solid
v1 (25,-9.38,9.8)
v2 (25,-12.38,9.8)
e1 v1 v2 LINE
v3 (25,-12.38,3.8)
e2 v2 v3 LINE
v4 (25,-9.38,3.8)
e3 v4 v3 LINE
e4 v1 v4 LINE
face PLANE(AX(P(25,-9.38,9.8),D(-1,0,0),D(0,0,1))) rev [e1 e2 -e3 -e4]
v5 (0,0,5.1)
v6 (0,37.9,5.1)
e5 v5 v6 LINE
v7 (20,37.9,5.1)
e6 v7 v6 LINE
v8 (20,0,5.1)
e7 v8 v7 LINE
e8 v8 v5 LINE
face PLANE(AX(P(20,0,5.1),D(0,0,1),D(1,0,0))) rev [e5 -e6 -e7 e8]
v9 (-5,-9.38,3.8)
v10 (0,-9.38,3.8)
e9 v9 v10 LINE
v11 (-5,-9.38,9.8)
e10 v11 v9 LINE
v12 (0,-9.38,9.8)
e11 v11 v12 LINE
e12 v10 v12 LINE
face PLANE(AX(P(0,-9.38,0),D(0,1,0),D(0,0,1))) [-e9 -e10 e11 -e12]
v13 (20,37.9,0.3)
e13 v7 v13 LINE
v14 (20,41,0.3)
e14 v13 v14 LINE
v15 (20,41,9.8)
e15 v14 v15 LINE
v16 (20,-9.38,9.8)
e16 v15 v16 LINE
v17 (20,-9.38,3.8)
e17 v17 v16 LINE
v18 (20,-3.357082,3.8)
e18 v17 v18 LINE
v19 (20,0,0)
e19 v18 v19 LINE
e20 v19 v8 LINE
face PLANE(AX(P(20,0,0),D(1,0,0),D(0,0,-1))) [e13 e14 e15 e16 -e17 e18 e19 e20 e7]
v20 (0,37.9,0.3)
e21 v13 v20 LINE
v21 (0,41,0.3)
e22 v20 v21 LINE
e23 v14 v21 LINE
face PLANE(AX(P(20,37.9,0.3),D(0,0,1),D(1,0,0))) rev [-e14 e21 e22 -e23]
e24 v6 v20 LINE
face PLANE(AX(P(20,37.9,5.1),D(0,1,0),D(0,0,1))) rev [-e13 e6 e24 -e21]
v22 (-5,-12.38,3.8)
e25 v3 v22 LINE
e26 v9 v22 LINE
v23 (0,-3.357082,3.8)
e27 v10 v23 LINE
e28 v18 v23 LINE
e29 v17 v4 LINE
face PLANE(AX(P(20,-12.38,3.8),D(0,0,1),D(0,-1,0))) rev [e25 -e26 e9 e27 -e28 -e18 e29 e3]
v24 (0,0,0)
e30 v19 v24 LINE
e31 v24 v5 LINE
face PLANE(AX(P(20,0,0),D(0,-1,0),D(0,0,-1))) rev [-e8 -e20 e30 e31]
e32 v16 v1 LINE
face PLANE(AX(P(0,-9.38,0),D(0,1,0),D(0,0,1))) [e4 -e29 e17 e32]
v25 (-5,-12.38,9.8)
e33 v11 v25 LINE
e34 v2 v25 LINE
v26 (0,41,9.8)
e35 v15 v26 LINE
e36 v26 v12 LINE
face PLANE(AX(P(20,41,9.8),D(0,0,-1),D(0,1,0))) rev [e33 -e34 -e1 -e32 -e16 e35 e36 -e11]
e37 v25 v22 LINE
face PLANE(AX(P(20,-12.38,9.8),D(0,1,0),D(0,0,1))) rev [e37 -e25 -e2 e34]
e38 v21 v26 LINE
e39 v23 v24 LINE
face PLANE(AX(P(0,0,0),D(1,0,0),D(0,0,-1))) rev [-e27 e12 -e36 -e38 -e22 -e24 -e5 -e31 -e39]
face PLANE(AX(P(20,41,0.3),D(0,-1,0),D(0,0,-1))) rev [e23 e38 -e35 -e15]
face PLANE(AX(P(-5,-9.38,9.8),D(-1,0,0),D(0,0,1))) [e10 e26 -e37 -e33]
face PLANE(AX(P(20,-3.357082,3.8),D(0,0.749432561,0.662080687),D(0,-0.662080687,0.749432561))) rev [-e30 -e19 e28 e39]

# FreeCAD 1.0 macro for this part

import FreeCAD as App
import Part
import Sketcher
Q = App.Units.Quantity

doc = App.newDocument("Part")
body = doc.addObject("PartDesign::Body", "Body")

# Sketch on YZ plane
sketch1 = doc.addObject("Sketcher::SketchObject", "Sketch")
body.addObject(sketch1)
sketch1.AttachmentSupport = (doc.YZ_Plane, [""])
sketch1.MapMode = "FlatFace"
sketch1.addGeometry([
    Part.LineSegment(App.Vector(-12.38, 9.8, 0), App.Vector(-12.38, 3.8, 0)),  # 0
    Part.LineSegment(App.Vector(-12.38, 3.8, 0), App.Vector(-3.357082, 3.8, 0)),  # 1
    Part.LineSegment(App.Vector(-3.357082, 3.8, 0), App.Vector(0, 0, 0)),  # 2
    Part.LineSegment(App.Vector(0, 0, 0), App.Vector(0, 5.1, 0)),  # 3
    Part.LineSegment(App.Vector(0, 5.1, 0), App.Vector(37.9, 5.1, 0)),  # 4
    Part.LineSegment(App.Vector(37.9, 5.1, 0), App.Vector(37.9, 0.3, 0)),  # 5
    Part.LineSegment(App.Vector(37.9, 0.3, 0), App.Vector(41, 0.3, 0)),  # 6
    Part.LineSegment(App.Vector(41, 0.3, 0), App.Vector(41, 9.8, 0)),  # 7
    Part.LineSegment(App.Vector(41, 9.8, 0), App.Vector(-12.38, 9.8, 0)),  # 8
], False)
sketch1.addConstraint([
    Sketcher.Constraint("Coincident", 0, 2, 1, 1),
    Sketcher.Constraint("Coincident", 1, 2, 2, 1),
    Sketcher.Constraint("Coincident", 2, 2, 3, 1),
    Sketcher.Constraint("Coincident", 3, 2, 4, 1),
    Sketcher.Constraint("Coincident", 4, 2, 5, 1),
    Sketcher.Constraint("Coincident", 5, 2, 6, 1),
    Sketcher.Constraint("Coincident", 6, 2, 7, 1),
    Sketcher.Constraint("Coincident", 7, 2, 8, 1),
    Sketcher.Constraint("Coincident", 8, 2, 0, 1),
    Sketcher.Constraint("Vertical", 0),
    Sketcher.Constraint("Horizontal", 1),
    Sketcher.Constraint("Vertical", 3),
    Sketcher.Constraint("Horizontal", 4),
    Sketcher.Constraint("Vertical", 5),
    Sketcher.Constraint("Horizontal", 6),
    Sketcher.Constraint("Vertical", 7),
    Sketcher.Constraint("Horizontal", 8),
    Sketcher.Constraint("Coincident", 2, 2, -1, 1),
    Sketcher.Constraint("DistanceY", 0, 2, 0, 1, Q("6 mm")),
    Sketcher.Constraint("DistanceX", 4, 1, 4, 2, Q("37.9 mm")),
    Sketcher.Constraint("DistanceX", 6, 1, 6, 2, Q("3.1 mm")),
    Sketcher.Constraint("DistanceY", 3, 1, 3, 2, Q("5.1 mm")),
    Sketcher.Constraint("DistanceY", 5, 2, 5, 1, Q("4.8 mm")),
    Sketcher.Constraint("DistanceY", 7, 1, 7, 2, Q("9.5 mm")),
    Sketcher.Constraint("DistanceX", 8, 2, 8, 1, Q("53.38 mm")),
    Sketcher.Constraint("DistanceX", 1, 1, 1, 2, Q("9.022918 mm")),
])
pad1 = doc.addObject("PartDesign::Pad", "Pad")
body.addObject(pad1)
pad1.Profile = sketch1
pad1.Length = 20

# Sketch on XZ plane
sketch2 = doc.addObject("Sketcher::SketchObject", "Sketch001")
body.addObject(sketch2)
sketch2.AttachmentSupport = (doc.XZ_Plane, [""])
sketch2.MapMode = "FlatFace"
sketch2.AttachmentOffset = App.Placement(App.Vector(0, 0, 12.38), App.Rotation())
sketch2.addGeometry([
    Part.LineSegment(App.Vector(-5, 9.8, 0), App.Vector(-5, 3.8, 0)),
    Part.LineSegment(App.Vector(-5, 3.8, 0), App.Vector(25, 3.8, 0)),
    Part.LineSegment(App.Vector(25, 3.8, 0), App.Vector(25, 9.8, 0)),
    Part.LineSegment(App.Vector(25, 9.8, 0), App.Vector(-5, 9.8, 0)),
], False)
sketch2.addConstraint([
    Sketcher.Constraint("Coincident", 0, 2, 1, 1),
    Sketcher.Constraint("Coincident", 1, 2, 2, 1),
    Sketcher.Constraint("Coincident", 2, 2, 3, 1),
    Sketcher.Constraint("Coincident", 3, 2, 0, 1),
    Sketcher.Constraint("Vertical", 0),
    Sketcher.Constraint("Horizontal", 1),
    Sketcher.Constraint("Vertical", 2),
    Sketcher.Constraint("Horizontal", 3),
    Sketcher.Constraint("DistanceX", 1, 1, 1, 2, Q("30 mm")),
    Sketcher.Constraint("DistanceY", 0, 2, 0, 1, Q("6 mm")),
    Sketcher.Constraint("DistanceX", 0, 2, -1, 1, Q("5 mm")),
    Sketcher.Constraint("DistanceY", -1, 1, 0, 2, Q("3.8 mm")),
])
pad2 = doc.addObject("PartDesign::Pad", "Pad001")
body.addObject(pad2)
pad2.Profile = sketch2
pad2.Length = 3
pad2.Reversed = True

doc.recompute()
